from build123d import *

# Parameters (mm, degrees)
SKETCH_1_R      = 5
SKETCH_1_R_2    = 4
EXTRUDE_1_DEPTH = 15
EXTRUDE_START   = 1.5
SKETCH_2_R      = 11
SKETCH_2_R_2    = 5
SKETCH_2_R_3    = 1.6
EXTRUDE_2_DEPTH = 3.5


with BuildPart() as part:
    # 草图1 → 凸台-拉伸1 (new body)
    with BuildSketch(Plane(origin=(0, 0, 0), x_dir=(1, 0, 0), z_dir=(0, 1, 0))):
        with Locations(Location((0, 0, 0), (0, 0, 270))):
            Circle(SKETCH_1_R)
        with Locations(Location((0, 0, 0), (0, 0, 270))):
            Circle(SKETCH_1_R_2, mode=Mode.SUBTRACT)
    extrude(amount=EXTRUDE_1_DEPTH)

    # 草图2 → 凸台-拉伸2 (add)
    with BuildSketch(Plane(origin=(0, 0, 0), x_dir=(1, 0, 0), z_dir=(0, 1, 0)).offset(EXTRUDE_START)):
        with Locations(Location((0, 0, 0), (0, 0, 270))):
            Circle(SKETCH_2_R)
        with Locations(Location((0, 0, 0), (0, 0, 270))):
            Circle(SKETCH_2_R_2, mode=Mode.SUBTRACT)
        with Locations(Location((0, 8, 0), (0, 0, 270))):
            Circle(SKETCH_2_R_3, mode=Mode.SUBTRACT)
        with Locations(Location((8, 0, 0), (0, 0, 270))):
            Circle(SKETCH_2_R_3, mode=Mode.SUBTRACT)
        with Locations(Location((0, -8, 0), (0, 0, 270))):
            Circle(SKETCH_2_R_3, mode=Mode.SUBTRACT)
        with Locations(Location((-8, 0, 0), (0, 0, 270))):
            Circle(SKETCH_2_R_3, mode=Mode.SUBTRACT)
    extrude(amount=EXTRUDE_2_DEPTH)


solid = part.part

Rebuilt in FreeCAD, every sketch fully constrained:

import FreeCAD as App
import Part
import Sketcher

V = App.Vector
Q = App.Units.Quantity

doc = App.newDocument("Part")
body = doc.addObject("PartDesign::Body", "Body")

# Sketch on XZ plane
sketch1 = doc.addObject("Sketcher::SketchObject", "Sketch")
body.addObject(sketch1)
sketch1.AttachmentSupport = (doc.XZ_Plane, [""])
sketch1.MapMode = "FlatFace"
sketch1.addGeometry(Part.Circle(V(0, 0, 0), V(0, 0, 1), 5), False)
sketch1.addGeometry(Part.Circle(V(0, 0, 0), V(0, 0, 1), 4), False)
sketch1.addConstraint(Sketcher.Constraint("Coincident", 0, 3, -1, 1))
sketch1.addConstraint(Sketcher.Constraint("Coincident", 1, 3, -1, 1))
sketch1.addConstraint(Sketcher.Constraint("Diameter", 0, Q("10 mm")))
sketch1.addConstraint(Sketcher.Constraint("Diameter", 1, Q("8 mm")))
pad1 = doc.addObject("PartDesign::Pad", "Pad")
body.addObject(pad1)
pad1.Profile = sketch1
pad1.Length = 15
pad1.Reversed = True

# Sketch on XZ plane
sketch2 = doc.addObject("Sketcher::SketchObject", "Sketch001")
body.addObject(sketch2)
sketch2.AttachmentSupport = (doc.XZ_Plane, [""])
sketch2.MapMode = "FlatFace"
sketch2.AttachmentOffset = App.Placement(V(0, 0, -1.5), App.Rotation())
sketch2.addGeometry(Part.Circle(V(0, 0, 0), V(0, 0, 1), 11), False)
sketch2.addGeometry(Part.Circle(V(0, -8, 0), V(0, 0, 1), 1.6), False)
sketch2.addGeometry(Part.Circle(V(-8, 0, 0), V(0, 0, 1), 1.6), False)
sketch2.addGeometry(Part.Circle(V(8, 0, 0), V(0, 0, 1), 1.6), False)
sketch2.addGeometry(Part.Circle(V(0, 0, 0), V(0, 0, 1), 5), False)
sketch2.addGeometry(Part.Circle(V(0, 8, 0), V(0, 0, 1), 1.6), False)
sketch2.addConstraint(Sketcher.Constraint("Coincident", 0, 3, -1, 1))
sketch2.addConstraint(Sketcher.Constraint("Coincident", 4, 3, -1, 1))
sketch2.addConstraint(Sketcher.Constraint("Equal", 1, 2))
sketch2.addConstraint(Sketcher.Constraint("Equal", 2, 3))
sketch2.addConstraint(Sketcher.Constraint("Equal", 3, 5))
sketch2.addConstraint(Sketcher.Constraint("Symmetric", 2, 3, 3, 3, -1, 1))
sketch2.addConstraint(Sketcher.Constraint("Symmetric", 1, 3, 5, 3, -1, 1))
sketch2.addConstraint(Sketcher.Constraint("PointOnObject", 1, 3, -2))
sketch2.addConstraint(Sketcher.Constraint("PointOnObject", 2, 3, -1))
sketch2.addConstraint(Sketcher.Constraint("Diameter", 0, Q("22 mm")))
sketch2.addConstraint(Sketcher.Constraint("Diameter", 4, Q("10 mm")))
sketch2.addConstraint(Sketcher.Constraint("Diameter", 1, Q("3.2 mm")))
sketch2.addConstraint(Sketcher.Constraint("DistanceY", 1, 3, -1, 1, Q("8 mm")))
sketch2.addConstraint(Sketcher.Constraint("DistanceX", 2, 3, -1, 1, Q("8 mm")))
pad2 = doc.addObject("PartDesign::Pad", "Pad001")
body.addObject(pad2)
pad2.Profile = sketch2
pad2.Length = 3.5
pad2.Reversed = True

doc.recompute()
